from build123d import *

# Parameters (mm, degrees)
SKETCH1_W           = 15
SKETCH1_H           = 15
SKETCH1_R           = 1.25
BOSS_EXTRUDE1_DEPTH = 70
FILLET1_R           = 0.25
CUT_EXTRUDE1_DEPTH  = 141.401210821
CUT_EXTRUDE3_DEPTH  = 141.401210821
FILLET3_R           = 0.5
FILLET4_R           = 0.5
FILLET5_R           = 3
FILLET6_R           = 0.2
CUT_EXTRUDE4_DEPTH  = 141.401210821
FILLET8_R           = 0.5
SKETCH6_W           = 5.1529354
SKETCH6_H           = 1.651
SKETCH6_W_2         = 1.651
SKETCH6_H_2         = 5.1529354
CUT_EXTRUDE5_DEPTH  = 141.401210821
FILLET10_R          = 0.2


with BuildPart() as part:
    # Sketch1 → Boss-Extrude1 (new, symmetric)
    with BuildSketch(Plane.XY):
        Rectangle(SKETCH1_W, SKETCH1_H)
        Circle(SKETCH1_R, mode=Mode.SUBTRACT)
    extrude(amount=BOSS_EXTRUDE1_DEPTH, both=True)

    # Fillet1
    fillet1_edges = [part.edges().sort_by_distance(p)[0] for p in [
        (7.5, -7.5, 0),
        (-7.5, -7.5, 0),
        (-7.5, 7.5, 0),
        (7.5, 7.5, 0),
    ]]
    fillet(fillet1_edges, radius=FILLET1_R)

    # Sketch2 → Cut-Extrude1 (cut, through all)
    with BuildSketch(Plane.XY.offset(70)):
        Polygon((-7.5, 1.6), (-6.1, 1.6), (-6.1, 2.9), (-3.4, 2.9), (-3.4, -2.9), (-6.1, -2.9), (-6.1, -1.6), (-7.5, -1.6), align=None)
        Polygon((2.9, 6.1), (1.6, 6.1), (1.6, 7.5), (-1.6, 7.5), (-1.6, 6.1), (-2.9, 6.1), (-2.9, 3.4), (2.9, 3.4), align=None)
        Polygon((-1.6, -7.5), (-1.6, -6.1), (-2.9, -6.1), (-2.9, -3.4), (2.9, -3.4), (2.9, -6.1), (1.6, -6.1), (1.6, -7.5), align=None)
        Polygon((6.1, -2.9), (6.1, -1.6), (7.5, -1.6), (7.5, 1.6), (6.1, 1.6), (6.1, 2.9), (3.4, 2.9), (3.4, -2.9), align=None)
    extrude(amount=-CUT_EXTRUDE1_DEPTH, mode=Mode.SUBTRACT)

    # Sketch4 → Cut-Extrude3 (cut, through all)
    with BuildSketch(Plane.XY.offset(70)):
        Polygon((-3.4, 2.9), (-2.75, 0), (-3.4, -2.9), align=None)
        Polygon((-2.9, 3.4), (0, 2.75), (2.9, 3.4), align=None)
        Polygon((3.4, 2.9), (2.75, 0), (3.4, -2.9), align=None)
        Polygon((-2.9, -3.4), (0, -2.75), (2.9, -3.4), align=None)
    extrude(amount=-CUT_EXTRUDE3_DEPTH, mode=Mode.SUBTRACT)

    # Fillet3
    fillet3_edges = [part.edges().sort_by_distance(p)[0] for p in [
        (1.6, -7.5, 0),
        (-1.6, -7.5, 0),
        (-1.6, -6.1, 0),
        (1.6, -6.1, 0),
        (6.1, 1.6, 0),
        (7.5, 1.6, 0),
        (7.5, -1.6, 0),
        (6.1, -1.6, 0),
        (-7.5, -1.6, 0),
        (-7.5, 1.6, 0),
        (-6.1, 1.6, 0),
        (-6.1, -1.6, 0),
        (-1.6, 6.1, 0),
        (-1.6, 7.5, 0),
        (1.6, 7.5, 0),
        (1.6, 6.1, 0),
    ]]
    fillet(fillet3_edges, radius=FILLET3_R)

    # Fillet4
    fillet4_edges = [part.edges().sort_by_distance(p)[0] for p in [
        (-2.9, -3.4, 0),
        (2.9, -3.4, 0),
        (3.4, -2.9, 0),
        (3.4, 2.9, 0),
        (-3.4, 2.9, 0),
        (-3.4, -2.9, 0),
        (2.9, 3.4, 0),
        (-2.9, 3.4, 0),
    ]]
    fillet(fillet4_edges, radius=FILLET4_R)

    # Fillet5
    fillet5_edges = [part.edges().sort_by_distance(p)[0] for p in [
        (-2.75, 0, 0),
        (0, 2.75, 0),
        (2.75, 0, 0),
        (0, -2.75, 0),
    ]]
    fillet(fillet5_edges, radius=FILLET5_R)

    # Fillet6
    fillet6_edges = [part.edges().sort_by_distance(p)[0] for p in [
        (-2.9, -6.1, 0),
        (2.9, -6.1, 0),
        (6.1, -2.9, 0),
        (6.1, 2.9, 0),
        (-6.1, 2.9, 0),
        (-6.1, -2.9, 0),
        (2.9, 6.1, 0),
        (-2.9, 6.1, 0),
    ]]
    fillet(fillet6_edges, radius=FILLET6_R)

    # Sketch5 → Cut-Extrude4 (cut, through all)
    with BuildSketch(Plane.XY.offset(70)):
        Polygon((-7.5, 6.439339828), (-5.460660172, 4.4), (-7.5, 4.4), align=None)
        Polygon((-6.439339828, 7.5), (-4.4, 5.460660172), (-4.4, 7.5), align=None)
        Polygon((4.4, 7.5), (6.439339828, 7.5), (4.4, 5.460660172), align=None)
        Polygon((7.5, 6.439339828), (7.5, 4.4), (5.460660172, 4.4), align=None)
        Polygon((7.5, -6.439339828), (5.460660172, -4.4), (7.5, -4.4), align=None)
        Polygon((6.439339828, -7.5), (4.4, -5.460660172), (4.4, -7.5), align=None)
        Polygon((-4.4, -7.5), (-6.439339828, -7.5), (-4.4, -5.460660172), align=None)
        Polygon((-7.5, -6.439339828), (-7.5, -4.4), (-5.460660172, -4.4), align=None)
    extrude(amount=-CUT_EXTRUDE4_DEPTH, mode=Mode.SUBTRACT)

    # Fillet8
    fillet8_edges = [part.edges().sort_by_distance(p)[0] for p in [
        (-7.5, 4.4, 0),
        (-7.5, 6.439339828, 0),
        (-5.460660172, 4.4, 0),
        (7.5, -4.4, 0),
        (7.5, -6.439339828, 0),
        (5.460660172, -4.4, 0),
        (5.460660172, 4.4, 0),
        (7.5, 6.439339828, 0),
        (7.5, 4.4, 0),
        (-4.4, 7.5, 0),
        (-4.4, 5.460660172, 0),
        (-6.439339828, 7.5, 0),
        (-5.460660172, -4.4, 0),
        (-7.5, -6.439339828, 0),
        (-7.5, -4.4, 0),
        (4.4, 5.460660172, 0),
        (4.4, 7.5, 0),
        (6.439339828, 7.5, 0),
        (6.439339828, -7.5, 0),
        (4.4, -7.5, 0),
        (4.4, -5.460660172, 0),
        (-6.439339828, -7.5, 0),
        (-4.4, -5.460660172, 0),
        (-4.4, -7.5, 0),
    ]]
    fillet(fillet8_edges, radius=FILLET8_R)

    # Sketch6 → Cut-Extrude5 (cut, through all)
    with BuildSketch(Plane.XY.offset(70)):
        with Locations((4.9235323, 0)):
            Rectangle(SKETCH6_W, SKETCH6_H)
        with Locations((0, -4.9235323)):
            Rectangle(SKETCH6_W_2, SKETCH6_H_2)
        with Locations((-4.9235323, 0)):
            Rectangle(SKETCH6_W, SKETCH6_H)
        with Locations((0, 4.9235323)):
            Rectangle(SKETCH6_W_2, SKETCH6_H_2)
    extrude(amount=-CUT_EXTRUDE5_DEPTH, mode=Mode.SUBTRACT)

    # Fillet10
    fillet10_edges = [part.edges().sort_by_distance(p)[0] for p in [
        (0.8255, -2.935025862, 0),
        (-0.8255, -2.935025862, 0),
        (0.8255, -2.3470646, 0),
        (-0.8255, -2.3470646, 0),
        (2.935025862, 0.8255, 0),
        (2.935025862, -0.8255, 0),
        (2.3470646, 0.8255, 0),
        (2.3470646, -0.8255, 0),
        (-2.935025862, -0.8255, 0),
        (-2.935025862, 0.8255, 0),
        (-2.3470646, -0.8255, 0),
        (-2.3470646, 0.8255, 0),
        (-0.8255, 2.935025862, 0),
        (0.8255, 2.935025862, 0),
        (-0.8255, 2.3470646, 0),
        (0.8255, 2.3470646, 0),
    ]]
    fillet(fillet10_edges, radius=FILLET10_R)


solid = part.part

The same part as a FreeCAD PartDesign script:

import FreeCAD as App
import Part
import Sketcher
Q = App.Units.Quantity


def edges_at(feature, points):
    """Names of the edges that pass closest to the given points."""
    edges = feature.Shape.Edges
    near = lambda p: min(range(len(edges)), key=lambda i: edges[i].distToShape(Part.Vertex(*p))[0])
    return sorted({f"Edge{near(p) + 1}" for p in points})


def add_polygon(sketch, points):
    """Adds a closed chain of lines whose ends are joined by coincident constraints."""
    first, n = sketch.GeometryCount, len(points)
    for a, b in zip(points, points[1:] + points[:1]):
        sketch.addGeometry(Part.LineSegment(App.Vector(*a, 0), App.Vector(*b, 0)), False)
    for i in range(n):
        sketch.addConstraint(Sketcher.Constraint("Coincident", first + i, 2, first + (i + 1) % n, 1))

doc = App.newDocument("Part")
body = doc.addObject("PartDesign::Body", "Body")

# Sketch on XY plane
sketch1 = body.newObject("Sketcher::SketchObject", "Sketch")
sketch1.AttachmentSupport = (doc.getObject("XY_Plane"), [""])
sketch1.MapMode = "FlatFace"
add_polygon(sketch1, [(-7.5, 7.5), (-7.5, -7.5), (7.5, -7.5), (7.5, 7.5)])  # lines 0-3
sketch1.addGeometry(Part.Circle(App.Vector(0, 0, 0), App.Vector(0, 0, 1), 1.2), False)  # 4
sketch1.addConstraint([
    Sketcher.Constraint("Vertical", 0),
    Sketcher.Constraint("Horizontal", 1),
    Sketcher.Constraint("Vertical", 2),
    Sketcher.Constraint("Horizontal", 3),
    Sketcher.Constraint("Coincident", 4, 3, -1, 1),
    Sketcher.Constraint("Symmetric", 0, 2, 2, 2, -1, 1),
    Sketcher.Constraint("Equal", 3, 0),
    Sketcher.Constraint("Diameter", 4, Q("2.5 mm")),
    Sketcher.Constraint("DistanceX", 1, 1, 1, 2, Q("15 mm")),
])
pad1 = body.newObject("PartDesign::Pad", "Pad")
pad1.Profile = sketch1
pad1.Length = 140
pad1.Midplane = True
doc.recompute()

fillet = body.newObject("PartDesign::Fillet", "Fillet")
fillet.Base = (pad1, edges_at(pad1, [
    (7.5, -7.5, 0),
    (-7.5, -7.5, 0),
    (-7.5, 7.5, 0),
    (7.5, 7.5, 0),
]))
fillet.Radius = 0.25

# Sketch on XY plane
sketch2 = body.newObject("Sketcher::SketchObject", "Sketch001")
sketch2.AttachmentSupport = (doc.getObject("XY_Plane"), [""])
sketch2.MapMode = "FlatFace"
sketch2.AttachmentOffset = App.Placement(App.Vector(0, 0, 70), App.Rotation())
add_polygon(sketch2, [(-6.1, 1.6), (-7.5, 1.6), (-7.5, -1.6), (-6.1, -1.6), (-6.1, -2.9), (-3.4, -2.9), (-3.4, 2.9), (-6.1, 2.9)])  # lines 0-7
add_polygon(sketch2, [(2.9, 6.1), (1.6, 6.1), (1.6, 7.5), (-1.6, 7.5), (-1.6, 6.1), (-2.9, 6.1), (-2.9, 3.4), (2.9, 3.4)])  # lines 8-15
add_polygon(sketch2, [(-1.6, -6.1), (-1.6, -7.5), (1.6, -7.5), (1.6, -6.1), (2.9, -6.1), (2.9, -3.4), (-2.9, -3.4), (-2.9, -6.1)])  # lines 16-23
add_polygon(sketch2, [(6.1, -2.9), (6.1, -1.6), (7.5, -1.6), (7.5, 1.6), (6.1, 1.6), (6.1, 2.9), (3.4, 2.9), (3.4, -2.9)])  # lines 24-31
sketch2.addConstraint([
    Sketcher.Constraint("Horizontal", 0),
    Sketcher.Constraint("Vertical", 1),
    Sketcher.Constraint("Horizontal", 2),
    Sketcher.Constraint("Vertical", 3),
    Sketcher.Constraint("Horizontal", 4),
    Sketcher.Constraint("Vertical", 5),
    Sketcher.Constraint("Horizontal", 6),
    Sketcher.Constraint("Vertical", 7),
    Sketcher.Constraint("Horizontal", 8),
    Sketcher.Constraint("Vertical", 9),
    Sketcher.Constraint("Horizontal", 10),
    Sketcher.Constraint("Vertical", 11),
    Sketcher.Constraint("Horizontal", 12),
    Sketcher.Constraint("Vertical", 13),
    Sketcher.Constraint("Horizontal", 14),
    Sketcher.Constraint("Vertical", 15),
    Sketcher.Constraint("Vertical", 16),
    Sketcher.Constraint("Horizontal", 17),
    Sketcher.Constraint("Vertical", 18),
    Sketcher.Constraint("Horizontal", 19),
    Sketcher.Constraint("Vertical", 20),
    Sketcher.Constraint("Horizontal", 21),
    Sketcher.Constraint("Vertical", 22),
    Sketcher.Constraint("Horizontal", 23),
    Sketcher.Constraint("Vertical", 24),
    Sketcher.Constraint("Horizontal", 25),
    Sketcher.Constraint("Vertical", 26),
    Sketcher.Constraint("Horizontal", 27),
    Sketcher.Constraint("Vertical", 28),
    Sketcher.Constraint("Horizontal", 29),
    Sketcher.Constraint("Vertical", 30),
    Sketcher.Constraint("Horizontal", 31),
    Sketcher.Constraint("Symmetric", 9, 2, 16, 2, -1, 1),
    Sketcher.Constraint("Symmetric", 11, 2, 18, 2, -1, 1),
    Sketcher.Constraint("Symmetric", 13, 2, 20, 2, -1, 1),
    Sketcher.Constraint("Symmetric", 15, 2, 22, 2, -1, 1),
    Sketcher.Constraint("Symmetric", 7, 2, 24, 2, -1, 1),
    Sketcher.Constraint("Symmetric", 1, 2, 26, 2, -1, 1),
    Sketcher.Constraint("Symmetric", 3, 2, 28, 2, -1, 1),
    Sketcher.Constraint("Symmetric", 5, 2, 30, 2, -1, 1),
    Sketcher.Constraint("Symmetric", 8, 2, 11, 2, -2),
    Sketcher.Constraint("Symmetric", 2, 2, 24, 2, -2),
    Sketcher.Constraint("Horizontal", 6, 2, 28, 2),
    Sketcher.Constraint("Vertical", 15, 2, 19, 2),
    Sketcher.Constraint("Equal", 17, 1),
    Sketcher.Constraint("Equal", 23, 3),
    Sketcher.Constraint("Equal", 27, 9),
    Sketcher.Constraint("Equal", 31, 13),
    Sketcher.Constraint("DistanceX", 0, 2, 0, 1, Q("1.4 mm")),
    Sketcher.Constraint("DistanceX", 4, 1, 4, 2, Q("2.7 mm")),
    Sketcher.Constraint("DistanceX", 8, 2, 8, 1, Q("1.3 mm")),
    Sketcher.Constraint("DistanceX", 10, 2, 10, 1, Q("3.2 mm")),
    Sketcher.Constraint("DistanceX", 5, 2, 8, 2, Q("5 mm")),
    Sketcher.Constraint("DistanceY", 4, 2, 8, 2, Q("9 mm")),
])
pocket1 = body.newObject("PartDesign::Pocket", "Pocket")
pocket1.Profile = sketch2
pocket1.Type = "ThroughAll"

# Sketch on XY plane
sketch3 = body.newObject("Sketcher::SketchObject", "Sketch002")
sketch3.AttachmentSupport = (doc.getObject("XY_Plane"), [""])
sketch3.MapMode = "FlatFace"
sketch3.AttachmentOffset = App.Placement(App.Vector(0, 0, 70), App.Rotation())
add_polygon(sketch3, [(-2.8, 0), (-3.4, 2.9), (-3.4, -2.9)])  # lines 0-2
add_polygon(sketch3, [(-2.9, 3.4), (0, 2.8), (2.9, 3.4)])  # lines 3-5
add_polygon(sketch3, [(3.4, 2.9), (2.8, 0), (3.4, -2.9)])  # lines 6-8
add_polygon(sketch3, [(0, -2.8), (-2.9, -3.4), (2.9, -3.4)])  # lines 9-11
sketch3.addConstraint([
    Sketcher.Constraint("Vertical", 1),
    Sketcher.Constraint("Horizontal", 5),
    Sketcher.Constraint("Vertical", 8),
    Sketcher.Constraint("Horizontal", 10),
    Sketcher.Constraint("Symmetric", 2, 2, 6, 2, -1, 1),
    Sketcher.Constraint("Symmetric", 0, 2, 7, 2, -1, 1),
    Sketcher.Constraint("Symmetric", 4, 2, 9, 2, -1, 1),
    Sketcher.Constraint("Symmetric", 3, 2, 11, 2, -1, 1),
    Sketcher.Constraint("PointOnObject", 2, 2, -1),
    Sketcher.Constraint("PointOnObject", 3, 2, -2),
    Sketcher.Constraint("Perpendicular", 2, 3),
    Sketcher.Constraint("Perpendicular", 0, 4),
    Sketcher.Constraint("Perpendicular", 3, 6),
    Sketcher.Constraint("Perpendicular", 6, 11),
    Sketcher.Constraint("Horizontal", 1, 2, 7, 2),
    Sketcher.Constraint("Equal", 10, 1),
    Sketcher.Constraint("DistanceX", 5, 2, 5, 1, Q("5.8 mm")),
    Sketcher.Constraint("DistanceX", 0, 2, -1, 1, Q("3.4 mm")),
    Sketcher.Constraint("DistanceY", -1, 1, 4, 2, Q("3.4 mm")),
    Sketcher.Constraint("DistanceX", 2, 2, 6, 2, Q("5.5 mm")),
])
pocket2 = body.newObject("PartDesign::Pocket", "Pocket001")
pocket2.Profile = sketch3
pocket2.Type = "ThroughAll"
doc.recompute()

fillet2 = body.newObject("PartDesign::Fillet", "Fillet001")
fillet2.Base = (pocket2, edges_at(pocket2, [
    (1.6, -7.5, 0),
    (-1.6, -7.5, 0),
    (-1.6, -6.1, 0),
    (1.6, -6.1, 0),
    (6.1, 1.6, 0),
    (7.5, 1.6, 0),
    (7.5, -1.6, 0),
    (6.1, -1.6, 0),
    (-7.5, -1.6, 0),
    (-7.5, 1.6, 0),
    (-6.1, 1.6, 0),
    (-6.1, -1.6, 0),
    (-1.6, 6.1, 0),
    (-1.6, 7.5, 0),
    (1.6, 7.5, 0),
    (1.6, 6.1, 0),
]))
fillet2.Radius = 0.5
doc.recompute()

fillet3 = body.newObject("PartDesign::Fillet", "Fillet002")
fillet3.Base = (fillet2, edges_at(fillet2, [
    (-2.9, -3.4, 0),
    (2.9, -3.4, 0),
    (3.4, -2.9, 0),
    (3.4, 2.9, 0),
    (-3.4, 2.9, 0),
    (-3.4, -2.9, 0),
    (2.9, 3.4, 0),
    (-2.9, 3.4, 0),
]))
fillet3.Radius = 0.5
doc.recompute()

fillet4 = body.newObject("PartDesign::Fillet", "Fillet003")
fillet4.Base = (fillet3, edges_at(fillet3, [
    (-2.75, 0, 0),
    (0, 2.75, 0),
    (2.75, 0, 0),
    (0, -2.75, 0),
]))
fillet4.Radius = 3
doc.recompute()

fillet5 = body.newObject("PartDesign::Fillet", "Fillet004")
fillet5.Base = (fillet4, edges_at(fillet4, [
    (-2.9, -6.1, 0),
    (2.9, -6.1, 0),
    (6.1, -2.9, 0),
    (6.1, 2.9, 0),
    (-6.1, 2.9, 0),
    (-6.1, -2.9, 0),
    (2.9, 6.1, 0),
    (-2.9, 6.1, 0),
]))
fillet5.Radius = 0.2

# Sketch on XY plane
sketch4 = body.newObject("Sketcher::SketchObject", "Sketch003")
sketch4.AttachmentSupport = (doc.getObject("XY_Plane"), [""])
sketch4.MapMode = "FlatFace"
sketch4.AttachmentOffset = App.Placement(App.Vector(0, 0, 70), App.Rotation())
add_polygon(sketch4, [(-5.5, 4.4), (-7.5, 6.4), (-7.5, 4.4)])  # lines 0-2
add_polygon(sketch4, [(-6.4, 7.5), (-4.4, 5.5), (-4.4, 7.5)])  # lines 3-5
add_polygon(sketch4, [(6.4, 7.5), (4.4, 7.5), (4.4, 5.5)])  # lines 6-8
add_polygon(sketch4, [(7.5, 4.4), (7.5, 6.4), (5.5, 4.4)])  # lines 9-11
add_polygon(sketch4, [(5.5, -4.4), (7.5, -6.4), (7.5, -4.4)])  # lines 12-14
add_polygon(sketch4, [(6.4, -7.5), (4.4, -5.5), (4.4, -7.5)])  # lines 15-17
add_polygon(sketch4, [(-6.4, -7.5), (-4.4, -7.5), (-4.4, -5.5)])  # lines 18-20
add_polygon(sketch4, [(-7.5, -4.4), (-7.5, -6.4), (-5.5, -4.4)])  # lines 21-23
sketch4.addConstraint([
    Sketcher.Constraint("Vertical", 1),
    Sketcher.Constraint("Horizontal", 2),
    Sketcher.Constraint("Vertical", 4),
    Sketcher.Constraint("Horizontal", 5),
    Sketcher.Constraint("Horizontal", 6),
    Sketcher.Constraint("Vertical", 7),
    Sketcher.Constraint("Vertical", 9),
    Sketcher.Constraint("Horizontal", 11),
    Sketcher.Constraint("Vertical", 13),
    Sketcher.Constraint("Horizontal", 14),
    Sketcher.Constraint("Vertical", 16),
    Sketcher.Constraint("Horizontal", 17),
    Sketcher.Constraint("Horizontal", 18),
    Sketcher.Constraint("Vertical", 19),
    Sketcher.Constraint("Vertical", 21),
    Sketcher.Constraint("Horizontal", 23),
    Sketcher.Constraint("Symmetric", 0, 2, 12, 2, -1, 1),
    Sketcher.Constraint("Symmetric", 2, 2, 14, 2, -1, 1),
    Sketcher.Constraint("Symmetric", 3, 2, 15, 2, -1, 1),
    Sketcher.Constraint("Symmetric", 5, 2, 17, 2, -1, 1),
    Sketcher.Constraint("Symmetric", 6, 2, 18, 2, -1, 1),
    Sketcher.Constraint("Symmetric", 9, 2, 21, 2, -1, 1),
    Sketcher.Constraint("Symmetric", 10, 2, 22, 2, -1, 1),
    Sketcher.Constraint("Symmetric", 4, 2, 6, 2, -2),
    Sketcher.Constraint("Symmetric", 0, 2, 9, 2, -2),
    Sketcher.Constraint("Symmetric", 2, 2, 10, 2, -2),
    Sketcher.Constraint("Parallel", 0, 3),
    Sketcher.Constraint("Perpendicular", 3, 8),
    Sketcher.Constraint("Parallel", 8, 10),
    Sketcher.Constraint("Perpendicular", 15, 20),
    Sketcher.Constraint("Horizontal", 3, 2, 7, 2),
    Sketcher.Constraint("Horizontal", 15, 2, 19, 2),
    Sketcher.Constraint("Equal", 2, 5),
    Sketcher.Constraint("DistanceX", 0, 2, -1, 1, Q("7.5 mm")),
    Sketcher.Constraint("DistanceY", -1, 1, 1, 2, Q("4.4 mm")),
    Sketcher.Constraint("DistanceX", 3, 2, -1, 1, Q("4.4 mm")),
    Sketcher.Constraint("DistanceY", -1, 1, 4, 2, Q("7.5 mm")),
    Sketcher.Constraint("DistanceX", 2, 1, 2, 2, Q("2.03934 mm")),
])
pocket3 = body.newObject("PartDesign::Pocket", "Pocket002")
pocket3.Profile = sketch4
pocket3.Type = "ThroughAll"
doc.recompute()

fillet6 = body.newObject("PartDesign::Fillet", "Fillet005")
fillet6.Base = (pocket3, edges_at(pocket3, [
    (-7.5, 4.4, 0),
    (-7.5, 6.439, 0),
    (-5.461, 4.4, 0),
    (7.5, -4.4, 0),
    (7.5, -6.439, 0),
    (5.461, -4.4, 0),
    (5.461, 4.4, 0),
    (7.5, 6.439, 0),
    (7.5, 4.4, 0),
    (-4.4, 7.5, 0),
    (-4.4, 5.461, 0),
    (-6.439, 7.5, 0),
    (-5.461, -4.4, 0),
    (-7.5, -6.439, 0),
    (-7.5, -4.4, 0),
    (4.4, 5.461, 0),
    (4.4, 7.5, 0),
    (6.439, 7.5, 0),
    (6.439, -7.5, 0),
    (4.4, -7.5, 0),
    (4.4, -5.461, 0),
    (-6.439, -7.5, 0),
    (-4.4, -5.461, 0),
    (-4.4, -7.5, 0),
]))
fillet6.Radius = 0.5

# Sketch on XY plane
sketch5 = body.newObject("Sketcher::SketchObject", "Sketch004")
sketch5.AttachmentSupport = (doc.getObject("XY_Plane"), [""])
sketch5.MapMode = "FlatFace"
sketch5.AttachmentOffset = App.Placement(App.Vector(0, 0, 70), App.Rotation())
add_polygon(sketch5, [(2.3, 0.8), (2.3, -0.8), (7.5, -0.8), (7.5, 0.8)])  # lines 0-3
add_polygon(sketch5, [(-0.8, -2.3), (-0.8, -7.5), (0.8, -7.5), (0.8, -2.3)])  # lines 4-7
add_polygon(sketch5, [(-7.5, 0.8), (-7.5, -0.8), (-2.3, -0.8), (-2.3, 0.8)])  # lines 8-11
add_polygon(sketch5, [(-0.8, 7.5), (-0.8, 2.3), (0.8, 2.3), (0.8, 7.5)])  # lines 12-15
sketch5.addConstraint([
    Sketcher.Constraint("Vertical", 0),
    Sketcher.Constraint("Horizontal", 1),
    Sketcher.Constraint("Vertical", 2),
    Sketcher.Constraint("Horizontal", 3),
    Sketcher.Constraint("Vertical", 4),
    Sketcher.Constraint("Horizontal", 5),
    Sketcher.Constraint("Vertical", 6),
    Sketcher.Constraint("Horizontal", 7),
    Sketcher.Constraint("Vertical", 8),
    Sketcher.Constraint("Horizontal", 9),
    Sketcher.Constraint("Vertical", 10),
    Sketcher.Constraint("Horizontal", 11),
    Sketcher.Constraint("Vertical", 12),
    Sketcher.Constraint("Horizontal", 13),
    Sketcher.Constraint("Vertical", 14),
    Sketcher.Constraint("Horizontal", 15),
    Sketcher.Constraint("Symmetric", 2, 2, 8, 2, -1, 1),
    Sketcher.Constraint("Symmetric", 0, 2, 10, 2, -1, 1),
    Sketcher.Constraint("Symmetric", 6, 2, 12, 2, -1, 1),
    Sketcher.Constraint("Symmetric", 4, 2, 14, 2, -1, 1),
    Sketcher.Constraint("Horizontal", 1, 2, 8, 2),
    Sketcher.Constraint("Vertical", 7, 2, 12, 2),
    Sketcher.Constraint("Equal", 15, 0),
    Sketcher.Constraint("Equal", 11, 4),
    Sketcher.Constraint("DistanceX", -1, 1, 1, 2, Q("7.5 mm")),
    Sketcher.Constraint("DistanceY", 4, 2, -1, 1, Q("7.5 mm")),
    Sketcher.Constraint("DistanceX", 5, 1, 5, 2, Q("1.651 mm")),
    Sketcher.Constraint("DistanceX", 1, 1, 1, 2, Q("5.152935 mm")),
])
pocket4 = body.newObject("PartDesign::Pocket", "Pocket003")
pocket4.Profile = sketch5
pocket4.Type = "ThroughAll"
doc.recompute()

fillet7 = body.newObject("PartDesign::Fillet", "Fillet006")
fillet7.Base = (pocket4, edges_at(pocket4, [
    (0.826, -2.935, 0),
    (-0.826, -2.935, 0),
    (0.826, -2.347, 0),
    (-0.826, -2.347, 0),
    (2.935, 0.826, 0),
    (2.935, -0.826, 0),
    (2.347, 0.826, 0),
    (2.347, -0.826, 0),
    (-2.935, -0.826, 0),
    (-2.935, 0.826, 0),
    (-2.347, -0.826, 0),
    (-2.347, 0.826, 0),
    (-0.826, 2.935, 0),
    (0.826, 2.935, 0),
    (-0.826, 2.347, 0),
    (0.826, 2.347, 0),
]))
fillet7.Radius = 0.2

doc.recompute()
